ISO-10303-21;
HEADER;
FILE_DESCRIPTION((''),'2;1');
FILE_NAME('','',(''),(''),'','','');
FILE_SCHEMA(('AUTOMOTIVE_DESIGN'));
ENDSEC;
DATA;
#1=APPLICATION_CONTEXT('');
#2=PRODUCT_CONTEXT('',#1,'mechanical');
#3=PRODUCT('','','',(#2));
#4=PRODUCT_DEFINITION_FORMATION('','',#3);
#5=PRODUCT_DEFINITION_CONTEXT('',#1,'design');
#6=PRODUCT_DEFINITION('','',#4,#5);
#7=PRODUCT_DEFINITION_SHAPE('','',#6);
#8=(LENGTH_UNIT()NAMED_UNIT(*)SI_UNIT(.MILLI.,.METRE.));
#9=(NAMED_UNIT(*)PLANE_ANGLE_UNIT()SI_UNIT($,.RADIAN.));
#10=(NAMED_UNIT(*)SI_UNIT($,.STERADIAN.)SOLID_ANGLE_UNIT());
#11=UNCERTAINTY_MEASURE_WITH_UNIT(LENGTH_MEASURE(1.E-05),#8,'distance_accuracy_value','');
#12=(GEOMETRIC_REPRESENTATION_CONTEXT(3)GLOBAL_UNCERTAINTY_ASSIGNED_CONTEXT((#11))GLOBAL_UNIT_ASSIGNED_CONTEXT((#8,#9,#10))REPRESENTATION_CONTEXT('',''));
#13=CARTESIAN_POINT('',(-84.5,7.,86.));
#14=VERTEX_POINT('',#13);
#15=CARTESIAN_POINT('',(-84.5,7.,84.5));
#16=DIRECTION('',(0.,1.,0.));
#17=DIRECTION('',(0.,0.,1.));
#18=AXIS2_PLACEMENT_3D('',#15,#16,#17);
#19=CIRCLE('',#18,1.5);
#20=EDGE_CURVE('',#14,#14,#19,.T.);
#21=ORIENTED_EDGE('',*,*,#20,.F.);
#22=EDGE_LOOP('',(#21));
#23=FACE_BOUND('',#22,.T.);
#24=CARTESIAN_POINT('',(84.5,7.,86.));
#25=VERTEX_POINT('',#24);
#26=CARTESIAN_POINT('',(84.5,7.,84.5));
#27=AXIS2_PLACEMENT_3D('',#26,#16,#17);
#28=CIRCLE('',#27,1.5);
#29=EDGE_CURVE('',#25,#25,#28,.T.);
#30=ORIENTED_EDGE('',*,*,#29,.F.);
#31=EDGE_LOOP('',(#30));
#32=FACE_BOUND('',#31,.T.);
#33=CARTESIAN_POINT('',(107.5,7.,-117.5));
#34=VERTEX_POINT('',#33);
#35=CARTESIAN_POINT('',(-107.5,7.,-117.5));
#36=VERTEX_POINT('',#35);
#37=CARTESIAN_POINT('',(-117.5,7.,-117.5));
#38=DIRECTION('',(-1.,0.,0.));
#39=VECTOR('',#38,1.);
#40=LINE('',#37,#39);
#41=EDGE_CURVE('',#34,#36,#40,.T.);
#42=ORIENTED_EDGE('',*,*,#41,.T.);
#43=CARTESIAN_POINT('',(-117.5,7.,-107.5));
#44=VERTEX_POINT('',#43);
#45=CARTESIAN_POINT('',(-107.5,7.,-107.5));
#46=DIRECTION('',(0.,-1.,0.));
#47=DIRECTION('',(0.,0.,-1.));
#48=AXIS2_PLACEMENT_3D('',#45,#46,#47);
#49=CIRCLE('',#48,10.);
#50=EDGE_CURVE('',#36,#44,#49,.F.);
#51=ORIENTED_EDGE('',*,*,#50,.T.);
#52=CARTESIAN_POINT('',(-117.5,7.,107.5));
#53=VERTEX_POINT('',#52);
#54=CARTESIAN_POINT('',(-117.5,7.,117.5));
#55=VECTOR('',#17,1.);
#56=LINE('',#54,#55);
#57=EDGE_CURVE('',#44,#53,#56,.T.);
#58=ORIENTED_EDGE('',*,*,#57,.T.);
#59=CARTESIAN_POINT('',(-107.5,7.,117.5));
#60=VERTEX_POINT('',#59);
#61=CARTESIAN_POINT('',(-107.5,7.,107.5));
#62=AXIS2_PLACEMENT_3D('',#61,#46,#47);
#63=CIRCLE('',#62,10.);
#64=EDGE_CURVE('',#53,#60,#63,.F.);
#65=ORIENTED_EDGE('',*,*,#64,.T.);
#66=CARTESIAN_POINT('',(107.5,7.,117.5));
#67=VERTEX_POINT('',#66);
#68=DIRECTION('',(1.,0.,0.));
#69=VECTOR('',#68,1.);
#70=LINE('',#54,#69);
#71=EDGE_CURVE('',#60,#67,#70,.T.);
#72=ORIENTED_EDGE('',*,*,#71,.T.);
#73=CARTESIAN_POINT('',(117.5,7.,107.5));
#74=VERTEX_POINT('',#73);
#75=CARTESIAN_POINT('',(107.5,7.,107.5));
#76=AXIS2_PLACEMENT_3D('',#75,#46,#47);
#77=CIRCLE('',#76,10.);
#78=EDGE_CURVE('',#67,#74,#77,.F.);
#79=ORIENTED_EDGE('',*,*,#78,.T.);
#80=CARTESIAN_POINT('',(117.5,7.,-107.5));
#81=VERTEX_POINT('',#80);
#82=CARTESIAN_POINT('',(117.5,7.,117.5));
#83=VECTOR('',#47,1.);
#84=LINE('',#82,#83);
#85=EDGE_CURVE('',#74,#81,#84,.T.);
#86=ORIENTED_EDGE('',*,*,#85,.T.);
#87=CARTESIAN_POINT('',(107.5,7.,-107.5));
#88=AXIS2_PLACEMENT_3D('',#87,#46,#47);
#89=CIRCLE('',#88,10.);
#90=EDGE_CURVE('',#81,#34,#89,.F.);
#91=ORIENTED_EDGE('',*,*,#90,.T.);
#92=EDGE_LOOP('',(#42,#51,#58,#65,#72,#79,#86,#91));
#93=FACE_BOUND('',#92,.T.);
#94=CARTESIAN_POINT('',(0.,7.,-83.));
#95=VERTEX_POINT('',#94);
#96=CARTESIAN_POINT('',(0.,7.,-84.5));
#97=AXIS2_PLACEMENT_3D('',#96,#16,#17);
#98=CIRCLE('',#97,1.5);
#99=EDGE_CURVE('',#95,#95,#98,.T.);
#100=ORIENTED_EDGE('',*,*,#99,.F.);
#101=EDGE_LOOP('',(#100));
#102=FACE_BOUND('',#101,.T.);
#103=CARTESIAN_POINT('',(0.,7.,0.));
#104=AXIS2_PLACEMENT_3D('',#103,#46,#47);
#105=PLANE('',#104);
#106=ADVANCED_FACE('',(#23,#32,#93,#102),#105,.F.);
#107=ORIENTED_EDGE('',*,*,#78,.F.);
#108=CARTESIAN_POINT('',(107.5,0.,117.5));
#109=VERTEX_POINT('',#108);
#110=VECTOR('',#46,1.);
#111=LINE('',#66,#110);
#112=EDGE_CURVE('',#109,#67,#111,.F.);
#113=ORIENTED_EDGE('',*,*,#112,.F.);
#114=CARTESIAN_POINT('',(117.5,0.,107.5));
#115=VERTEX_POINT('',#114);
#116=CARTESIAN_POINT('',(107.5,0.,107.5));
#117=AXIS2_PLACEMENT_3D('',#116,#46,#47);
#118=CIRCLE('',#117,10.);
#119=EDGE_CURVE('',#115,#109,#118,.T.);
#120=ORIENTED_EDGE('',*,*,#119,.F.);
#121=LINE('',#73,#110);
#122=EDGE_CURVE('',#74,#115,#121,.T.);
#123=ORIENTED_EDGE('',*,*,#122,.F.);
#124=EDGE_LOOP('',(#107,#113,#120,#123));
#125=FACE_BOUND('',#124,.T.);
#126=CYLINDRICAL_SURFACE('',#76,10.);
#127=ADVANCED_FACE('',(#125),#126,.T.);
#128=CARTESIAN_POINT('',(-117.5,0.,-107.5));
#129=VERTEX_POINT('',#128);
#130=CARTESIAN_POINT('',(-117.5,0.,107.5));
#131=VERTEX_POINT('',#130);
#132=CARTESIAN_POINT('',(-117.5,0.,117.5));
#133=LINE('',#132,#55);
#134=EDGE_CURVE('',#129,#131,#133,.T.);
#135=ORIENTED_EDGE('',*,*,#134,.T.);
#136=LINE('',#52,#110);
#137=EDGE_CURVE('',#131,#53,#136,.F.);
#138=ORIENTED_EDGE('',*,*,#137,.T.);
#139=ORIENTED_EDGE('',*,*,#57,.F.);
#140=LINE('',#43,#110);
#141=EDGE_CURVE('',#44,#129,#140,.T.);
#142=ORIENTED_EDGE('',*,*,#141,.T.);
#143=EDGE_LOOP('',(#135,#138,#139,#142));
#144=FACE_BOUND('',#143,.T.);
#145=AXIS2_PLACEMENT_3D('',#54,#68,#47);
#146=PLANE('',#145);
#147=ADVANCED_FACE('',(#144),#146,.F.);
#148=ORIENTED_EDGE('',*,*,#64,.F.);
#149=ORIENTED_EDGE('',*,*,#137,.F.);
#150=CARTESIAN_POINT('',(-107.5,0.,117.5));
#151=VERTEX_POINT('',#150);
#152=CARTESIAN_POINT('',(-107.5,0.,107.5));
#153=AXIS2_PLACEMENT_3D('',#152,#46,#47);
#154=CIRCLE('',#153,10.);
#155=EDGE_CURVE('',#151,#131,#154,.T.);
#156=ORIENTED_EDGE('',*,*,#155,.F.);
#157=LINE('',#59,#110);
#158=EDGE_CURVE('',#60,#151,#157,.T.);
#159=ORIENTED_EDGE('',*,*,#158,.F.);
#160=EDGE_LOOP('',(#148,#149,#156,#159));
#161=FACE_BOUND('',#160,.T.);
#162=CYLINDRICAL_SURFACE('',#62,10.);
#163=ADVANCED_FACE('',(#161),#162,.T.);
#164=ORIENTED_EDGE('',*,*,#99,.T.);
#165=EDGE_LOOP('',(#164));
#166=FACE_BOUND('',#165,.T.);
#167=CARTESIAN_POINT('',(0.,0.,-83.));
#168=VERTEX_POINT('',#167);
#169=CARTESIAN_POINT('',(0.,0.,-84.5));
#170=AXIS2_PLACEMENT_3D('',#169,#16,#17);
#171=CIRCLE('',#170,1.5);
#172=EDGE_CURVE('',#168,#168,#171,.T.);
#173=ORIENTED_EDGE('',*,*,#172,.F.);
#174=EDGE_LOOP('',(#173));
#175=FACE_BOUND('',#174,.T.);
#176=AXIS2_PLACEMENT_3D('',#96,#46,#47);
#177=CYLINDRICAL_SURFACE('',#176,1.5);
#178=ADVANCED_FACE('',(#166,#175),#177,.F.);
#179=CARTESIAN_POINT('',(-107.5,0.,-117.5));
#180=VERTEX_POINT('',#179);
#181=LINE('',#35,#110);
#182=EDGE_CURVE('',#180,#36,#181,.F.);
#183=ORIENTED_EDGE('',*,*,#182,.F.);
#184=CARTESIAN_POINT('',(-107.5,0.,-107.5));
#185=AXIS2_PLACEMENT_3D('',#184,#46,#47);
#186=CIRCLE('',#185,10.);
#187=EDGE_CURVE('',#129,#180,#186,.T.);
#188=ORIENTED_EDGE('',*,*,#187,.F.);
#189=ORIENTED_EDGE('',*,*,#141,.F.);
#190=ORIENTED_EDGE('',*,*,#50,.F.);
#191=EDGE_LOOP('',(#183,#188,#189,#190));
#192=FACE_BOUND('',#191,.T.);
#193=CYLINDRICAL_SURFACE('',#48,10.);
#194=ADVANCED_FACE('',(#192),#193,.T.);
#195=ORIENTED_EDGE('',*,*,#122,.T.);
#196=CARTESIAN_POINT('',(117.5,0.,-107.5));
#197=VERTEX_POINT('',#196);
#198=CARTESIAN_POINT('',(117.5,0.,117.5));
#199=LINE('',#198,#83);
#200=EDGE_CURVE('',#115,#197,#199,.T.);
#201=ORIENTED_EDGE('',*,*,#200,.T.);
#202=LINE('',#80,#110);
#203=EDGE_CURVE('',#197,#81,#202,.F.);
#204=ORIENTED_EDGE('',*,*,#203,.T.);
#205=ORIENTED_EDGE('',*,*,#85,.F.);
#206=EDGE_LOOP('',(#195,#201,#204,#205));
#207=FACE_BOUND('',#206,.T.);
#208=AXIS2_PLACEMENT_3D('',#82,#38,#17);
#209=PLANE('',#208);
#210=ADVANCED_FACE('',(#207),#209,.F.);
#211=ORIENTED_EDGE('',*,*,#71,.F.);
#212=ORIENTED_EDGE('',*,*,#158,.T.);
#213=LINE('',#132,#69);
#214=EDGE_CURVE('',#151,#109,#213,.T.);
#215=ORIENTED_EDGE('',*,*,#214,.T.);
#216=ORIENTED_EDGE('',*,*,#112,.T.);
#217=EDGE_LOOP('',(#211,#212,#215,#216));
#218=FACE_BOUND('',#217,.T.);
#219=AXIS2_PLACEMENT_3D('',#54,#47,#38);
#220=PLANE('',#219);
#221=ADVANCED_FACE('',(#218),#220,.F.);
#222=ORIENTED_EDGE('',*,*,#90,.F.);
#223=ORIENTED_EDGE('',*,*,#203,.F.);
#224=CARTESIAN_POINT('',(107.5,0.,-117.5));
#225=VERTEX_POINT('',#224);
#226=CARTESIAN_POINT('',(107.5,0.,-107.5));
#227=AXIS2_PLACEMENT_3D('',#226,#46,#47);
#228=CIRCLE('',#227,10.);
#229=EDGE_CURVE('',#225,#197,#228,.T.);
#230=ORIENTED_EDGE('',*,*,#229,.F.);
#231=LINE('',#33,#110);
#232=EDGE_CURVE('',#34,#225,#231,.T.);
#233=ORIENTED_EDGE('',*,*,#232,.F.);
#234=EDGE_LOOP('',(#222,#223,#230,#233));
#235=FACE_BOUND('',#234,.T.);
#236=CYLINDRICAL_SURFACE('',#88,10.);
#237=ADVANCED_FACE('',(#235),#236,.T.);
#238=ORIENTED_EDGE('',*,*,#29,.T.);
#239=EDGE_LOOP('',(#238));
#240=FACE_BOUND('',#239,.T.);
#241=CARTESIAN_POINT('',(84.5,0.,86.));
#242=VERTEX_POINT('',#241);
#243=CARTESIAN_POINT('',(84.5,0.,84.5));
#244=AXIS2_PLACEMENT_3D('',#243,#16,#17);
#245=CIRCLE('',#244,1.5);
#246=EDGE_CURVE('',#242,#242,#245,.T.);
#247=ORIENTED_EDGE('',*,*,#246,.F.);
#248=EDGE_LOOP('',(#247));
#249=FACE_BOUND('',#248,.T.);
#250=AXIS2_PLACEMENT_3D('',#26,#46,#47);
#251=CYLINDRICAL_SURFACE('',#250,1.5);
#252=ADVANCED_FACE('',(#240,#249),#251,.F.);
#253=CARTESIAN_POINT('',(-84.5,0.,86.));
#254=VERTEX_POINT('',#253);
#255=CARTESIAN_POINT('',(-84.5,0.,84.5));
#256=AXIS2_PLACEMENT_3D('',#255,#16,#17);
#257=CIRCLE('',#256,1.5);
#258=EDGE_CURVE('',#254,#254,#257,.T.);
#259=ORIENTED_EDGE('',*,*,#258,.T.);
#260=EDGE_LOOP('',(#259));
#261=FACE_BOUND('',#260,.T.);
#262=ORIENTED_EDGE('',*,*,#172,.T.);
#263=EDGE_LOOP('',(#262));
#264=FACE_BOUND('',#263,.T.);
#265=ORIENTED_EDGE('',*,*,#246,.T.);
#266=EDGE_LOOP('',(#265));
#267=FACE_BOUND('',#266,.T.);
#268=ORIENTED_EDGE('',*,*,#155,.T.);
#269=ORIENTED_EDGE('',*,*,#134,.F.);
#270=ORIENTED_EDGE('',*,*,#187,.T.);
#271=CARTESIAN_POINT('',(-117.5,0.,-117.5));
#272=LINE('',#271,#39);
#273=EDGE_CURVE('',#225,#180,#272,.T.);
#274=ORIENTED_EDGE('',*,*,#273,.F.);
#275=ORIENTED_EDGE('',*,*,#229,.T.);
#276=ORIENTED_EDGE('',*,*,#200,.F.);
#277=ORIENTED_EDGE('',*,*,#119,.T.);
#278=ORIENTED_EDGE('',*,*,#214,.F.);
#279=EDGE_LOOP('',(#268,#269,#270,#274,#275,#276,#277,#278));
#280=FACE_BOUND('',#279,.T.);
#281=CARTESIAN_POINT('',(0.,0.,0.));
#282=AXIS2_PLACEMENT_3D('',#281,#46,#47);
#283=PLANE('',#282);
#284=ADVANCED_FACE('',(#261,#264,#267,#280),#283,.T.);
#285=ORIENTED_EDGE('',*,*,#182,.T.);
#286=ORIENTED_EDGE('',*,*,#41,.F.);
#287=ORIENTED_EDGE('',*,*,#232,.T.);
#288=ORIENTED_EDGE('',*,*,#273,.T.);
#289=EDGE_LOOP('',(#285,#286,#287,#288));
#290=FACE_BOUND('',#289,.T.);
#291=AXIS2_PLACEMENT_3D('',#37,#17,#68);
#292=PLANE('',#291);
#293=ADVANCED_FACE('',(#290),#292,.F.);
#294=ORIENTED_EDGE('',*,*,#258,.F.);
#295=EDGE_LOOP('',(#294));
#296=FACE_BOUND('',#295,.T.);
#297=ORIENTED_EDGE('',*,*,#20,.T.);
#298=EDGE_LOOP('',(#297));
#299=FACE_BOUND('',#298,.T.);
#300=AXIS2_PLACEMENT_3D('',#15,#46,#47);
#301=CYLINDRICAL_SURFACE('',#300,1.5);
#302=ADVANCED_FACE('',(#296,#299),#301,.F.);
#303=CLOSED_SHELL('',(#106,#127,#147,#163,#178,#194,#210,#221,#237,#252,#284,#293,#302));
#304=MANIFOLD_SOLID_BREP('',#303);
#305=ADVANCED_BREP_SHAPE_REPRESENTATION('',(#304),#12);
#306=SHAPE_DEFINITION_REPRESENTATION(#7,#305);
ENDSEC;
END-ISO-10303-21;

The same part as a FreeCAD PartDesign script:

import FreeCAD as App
import Part
import Sketcher

V = App.Vector
Q = App.Units.Quantity


def edges_at(feature, points):
    """Names of the edges that pass closest to the given points."""
    edges = feature.Shape.Edges
    near = lambda p: min(range(len(edges)), key=lambda i: edges[i].distToShape(Part.Vertex(*p))[0])
    return sorted({f"Edge{near(p) + 1}" for p in points})


def add_polygon(sketch, points):
    """Adds a closed chain of lines whose ends are joined by coincident constraints."""
    first, n = sketch.GeometryCount, len(points)
    for a, b in zip(points, points[1:] + points[:1]):
        sketch.addGeometry(Part.LineSegment(App.Vector(*a, 0), App.Vector(*b, 0)), False)
    for i in range(n):
        sketch.addConstraint(Sketcher.Constraint("Coincident", first + i, 2, first + (i + 1) % n, 1))

doc = App.newDocument("Part")
body = doc.addObject("PartDesign::Body", "Body")

# Sketch on XZ plane
sketch1 = body.newObject("Sketcher::SketchObject", "Sketch")
sketch1.AttachmentSupport = (doc.getObject("XZ_Plane"), [""])
sketch1.MapMode = "FlatFace"
add_polygon(sketch1, [(-117.5, -117.5), (-117.5, 117.5), (117.5, 117.5), (117.5, -117.5)])  # lines 0-3
sketch1.addGeometry(Part.Circle(V(-84.5, 84.5, 0), V(0, 0, 1), 1.5), False)  # 4
sketch1.addGeometry(Part.Circle(V(84.5, 84.5, 0), V(0, 0, 1), 1.5), False)  # 5
sketch1.addGeometry(Part.Circle(V(0, -84.5, 0), V(0, 0, 1), 1.5), False)  # 6
sketch1.addConstraint(Sketcher.Constraint("Vertical", 0))
sketch1.addConstraint(Sketcher.Constraint("Horizontal", 1))
sketch1.addConstraint(Sketcher.Constraint("Vertical", 2))
sketch1.addConstraint(Sketcher.Constraint("Horizontal", 3))
sketch1.addConstraint(Sketcher.Constraint("Equal", 4, 5))
sketch1.addConstraint(Sketcher.Constraint("Equal", 5, 6))
sketch1.addConstraint(Sketcher.Constraint("Symmetric", 0, 2, 2, 2, -1, 1))
sketch1.addConstraint(Sketcher.Constraint("Symmetric", 4, 3, 5, 3, -2))
sketch1.addConstraint(Sketcher.Constraint("PointOnObject", 6, 3, -2))
sketch1.addConstraint(Sketcher.Constraint("Equal", 3, 0))
sketch1.addConstraint(Sketcher.Constraint("Diameter", 4, Q("3 mm")))
sketch1.addConstraint(Sketcher.Constraint("DistanceX", 1, 1, 1, 2, Q("235 mm")))
sketch1.addConstraint(Sketcher.Constraint("DistanceX", 4, 3, 5, 3, Q("169 mm")))
sketch1.addConstraint(Sketcher.Constraint("DistanceY", 6, 3, 4, 3, Q("169 mm")))
sketch1.addConstraint(Sketcher.Constraint("DistanceY", 4, 3, 0, 2, Q("33 mm")))
pad1 = body.newObject("PartDesign::Pad", "Pad")
pad1.Profile = sketch1
pad1.Length = 7
pad1.Reversed = True
doc.recompute()

fillet = body.newObject("PartDesign::Fillet", "Fillet")
fillet.Base = (pad1, edges_at(pad1, [
    (117.5, 3.5, 117.5),
    (-117.5, 3.5, 117.5),
    (-117.5, 3.5, -117.5),
    (117.5, 3.5, -117.5),
]))
fillet.Radius = 10

doc.recompute()
